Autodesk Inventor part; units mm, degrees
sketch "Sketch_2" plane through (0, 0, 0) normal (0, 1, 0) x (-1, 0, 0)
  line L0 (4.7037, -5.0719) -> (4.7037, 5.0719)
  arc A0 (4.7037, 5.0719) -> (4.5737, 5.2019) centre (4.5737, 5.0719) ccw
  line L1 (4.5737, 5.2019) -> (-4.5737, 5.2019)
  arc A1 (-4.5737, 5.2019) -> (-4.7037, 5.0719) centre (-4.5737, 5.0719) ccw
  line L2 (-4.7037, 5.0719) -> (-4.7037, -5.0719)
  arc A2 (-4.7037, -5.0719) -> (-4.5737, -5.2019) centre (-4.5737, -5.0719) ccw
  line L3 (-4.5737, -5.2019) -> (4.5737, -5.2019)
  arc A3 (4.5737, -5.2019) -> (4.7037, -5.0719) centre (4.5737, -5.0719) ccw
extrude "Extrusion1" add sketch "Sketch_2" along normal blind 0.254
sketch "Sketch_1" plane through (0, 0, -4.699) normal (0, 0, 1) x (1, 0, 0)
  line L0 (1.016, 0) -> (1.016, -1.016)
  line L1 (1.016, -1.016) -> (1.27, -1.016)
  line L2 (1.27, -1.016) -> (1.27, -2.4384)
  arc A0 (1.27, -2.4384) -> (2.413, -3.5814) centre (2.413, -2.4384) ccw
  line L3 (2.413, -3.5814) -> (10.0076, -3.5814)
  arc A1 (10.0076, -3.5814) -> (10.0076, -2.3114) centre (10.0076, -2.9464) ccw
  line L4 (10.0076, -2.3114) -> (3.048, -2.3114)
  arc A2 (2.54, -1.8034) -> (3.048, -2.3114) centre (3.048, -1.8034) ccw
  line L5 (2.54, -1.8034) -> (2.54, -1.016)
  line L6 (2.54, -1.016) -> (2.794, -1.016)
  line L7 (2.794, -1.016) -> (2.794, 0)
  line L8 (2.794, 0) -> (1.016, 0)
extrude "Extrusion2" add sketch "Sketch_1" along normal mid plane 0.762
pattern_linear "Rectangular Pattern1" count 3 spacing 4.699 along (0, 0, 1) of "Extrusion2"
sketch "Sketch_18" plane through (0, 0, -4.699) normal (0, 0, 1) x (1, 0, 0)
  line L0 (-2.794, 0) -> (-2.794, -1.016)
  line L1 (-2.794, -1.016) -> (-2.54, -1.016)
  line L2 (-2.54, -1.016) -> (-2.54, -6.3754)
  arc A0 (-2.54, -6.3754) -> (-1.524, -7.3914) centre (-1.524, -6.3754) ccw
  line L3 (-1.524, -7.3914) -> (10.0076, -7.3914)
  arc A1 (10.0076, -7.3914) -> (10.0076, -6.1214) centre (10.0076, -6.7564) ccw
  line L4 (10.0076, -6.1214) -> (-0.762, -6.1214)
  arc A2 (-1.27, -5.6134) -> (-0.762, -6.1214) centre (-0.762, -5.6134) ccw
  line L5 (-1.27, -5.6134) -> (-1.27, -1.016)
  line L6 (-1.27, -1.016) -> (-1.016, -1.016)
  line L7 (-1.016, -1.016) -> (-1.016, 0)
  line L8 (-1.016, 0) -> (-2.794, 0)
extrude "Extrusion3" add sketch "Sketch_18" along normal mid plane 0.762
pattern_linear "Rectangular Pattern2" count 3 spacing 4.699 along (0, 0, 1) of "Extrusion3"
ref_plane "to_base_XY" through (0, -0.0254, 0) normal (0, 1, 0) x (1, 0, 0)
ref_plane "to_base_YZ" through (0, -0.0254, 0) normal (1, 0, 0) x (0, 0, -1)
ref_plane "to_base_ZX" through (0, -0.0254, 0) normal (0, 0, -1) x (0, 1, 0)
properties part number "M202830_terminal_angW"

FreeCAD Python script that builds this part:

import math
import FreeCAD as App
import Part
import Sketcher

V = App.Vector
Q = App.Units.Quantity

doc = App.newDocument("Part")
params = doc.addObject("Spreadsheet::Sheet", "Params")
for row, (alias, value) in enumerate([
    ("pad1_length", "0.01 in"),
    ("sketch2_radius", "0.02 in"),
    ("sketch2_radius2", "0.045 in"),
    ("sketch2_radius3", "0.025 in"),
    ("sketch2_width", "0.07 in"),
    ("sketch2_width2", "0.01 in"),
    ("pad2_length", "0.03 in"),
    ("linearpattern_pitch", "0.185 in"),
    ("sketch3_radius", "0.04 in"),
    ("sketch3_radius2", "0.02 in"),
    ("sketch3_radius3", "0.025 in"),
    ("sketch3_width", "0.07 in"),
    ("sketch3_width2", "0.01 in"),
    ("pad3_length", "0.03 in"),
    ("linearpattern2_pitch", "0.185 in"),
], start=1):
    params.set(f"A{row}", alias)
    params.set(f"B{row}", "=" + value)
    params.setAlias(f"B{row}", alias)

body = doc.addObject("PartDesign::Body", "Body")

# Sketch on XZ plane
sketch1 = body.newObject("Sketcher::SketchObject", "Sketch")
sketch1.AttachmentSupport = (doc.getObject("XZ_Plane"), [""])
sketch1.MapMode = "FlatFace"
sketch1.addGeometry([
    Part.ArcOfCircle(Part.Circle(V(-4.5737, -5.0719, 0), V(0, 0, 1), 0.13), math.radians(180), math.radians(270)),  # 0
    Part.LineSegment(V(-4.7037, -5.0719, 0), V(-4.7037, 5.0719, 0)),  # 1
    Part.ArcOfCircle(Part.Circle(V(-4.5737, 5.0719, 0), V(0, 0, 1), 0.13), math.radians(90), math.radians(180)),  # 2
    Part.LineSegment(V(-4.5737, 5.2019, 0), V(4.5737, 5.2019, 0)),  # 3
    Part.ArcOfCircle(Part.Circle(V(4.5737, 5.0719, 0), V(0, 0, 1), 0.13), math.radians(0), math.radians(90)),  # 4
    Part.LineSegment(V(4.7037, 5.0719, 0), V(4.7037, -5.0719, 0)),  # 5
    Part.ArcOfCircle(Part.Circle(V(4.5737, -5.0719, 0), V(0, 0, 1), 0.13), math.radians(-90), math.radians(0)),  # 6
    Part.LineSegment(V(4.5737, -5.2019, 0), V(-4.5737, -5.2019, 0)),  # 7
], False)
sketch1.addConstraint([
    Sketcher.Constraint("Tangent", 0, 1, 1, 1),
    Sketcher.Constraint("Tangent", 1, 2, 2, 2),
    Sketcher.Constraint("Tangent", 2, 1, 3, 1),
    Sketcher.Constraint("Tangent", 3, 2, 4, 2),
    Sketcher.Constraint("Tangent", 4, 1, 5, 1),
    Sketcher.Constraint("Tangent", 5, 2, 6, 2),
    Sketcher.Constraint("Tangent", 6, 1, 7, 1),
    Sketcher.Constraint("Tangent", 7, 2, 0, 2),
    Sketcher.Constraint("Vertical", 1),
    Sketcher.Constraint("Horizontal", 3),
    Sketcher.Constraint("Vertical", 5),
    Sketcher.Constraint("Horizontal", 7),
    Sketcher.Constraint("Equal", 0, 2),
    Sketcher.Constraint("Equal", 2, 4),
    Sketcher.Constraint("Equal", 4, 6),
    Sketcher.Constraint("Symmetric", 0, 3, 4, 3, -1, 1),
    Sketcher.Constraint("Radius", 0, Q("0.13 mm")),
    Sketcher.Constraint("DistanceX", 3, 1, 3, 2, Q("9.1474 mm")),
    Sketcher.Constraint("DistanceY", 1, 1, 1, 2, Q("10.1438 mm")),
])
pad1 = body.newObject("PartDesign::Pad", "Pad")
pad1.Profile = sketch1
pad1.setExpression("Length", "Params.pad1_length")
pad1.Reversed = True

# Sketch on XY plane
sketch2 = body.newObject("Sketcher::SketchObject", "Sketch001")
sketch2.AttachmentSupport = (doc.getObject("XY_Plane"), [""])
sketch2.MapMode = "FlatFace"
sketch2.AttachmentOffset = App.Placement(V(0, 0, -0.185 * 25.4), App.Rotation())
sketch2.addGeometry([
    Part.LineSegment(V(2.794, 0, 0), V(1.016, 0, 0)),  # 0
    Part.LineSegment(V(1.016, 0, 0), V(1.016, -1.016, 0)),  # 1
    Part.LineSegment(V(1.016, -1.016, 0), V(1.27, -1.016, 0)),  # 2
    Part.LineSegment(V(1.27, -1.016, 0), V(1.27, -2.4384, 0)),  # 3
    Part.ArcOfCircle(Part.Circle(V(2.413, -2.4384, 0), V(0, 0, 1), 1.143), math.radians(180), math.radians(270)),  # 4
    Part.LineSegment(V(2.413, -3.5814, 0), V(10.0076, -3.5814, 0)),  # 5
    Part.ArcOfCircle(Part.Circle(V(10.0076, -2.9464, 0), V(0, 0, 1), 0.635), math.radians(-90), math.radians(90)),  # 6
    Part.LineSegment(V(10.0076, -2.3114, 0), V(3.048, -2.3114, 0)),  # 7
    Part.ArcOfCircle(Part.Circle(V(3.048, -1.8034, 0), V(0, 0, 1), 0.508), math.radians(180), math.radians(270)),  # 8
    Part.LineSegment(V(2.54, -1.8034, 0), V(2.54, -1.016, 0)),  # 9
    Part.LineSegment(V(2.54, -1.016, 0), V(2.794, -1.016, 0)),  # 10
    Part.LineSegment(V(2.794, -1.016, 0), V(2.794, 0, 0)),  # 11
], False)
sketch2.addConstraint([
    Sketcher.Constraint("Coincident", 0, 2, 1, 1),
    Sketcher.Constraint("Coincident", 1, 2, 2, 1),
    Sketcher.Constraint("Coincident", 2, 2, 3, 1),
    Sketcher.Constraint("Tangent", 3, 2, 4, 1),
    Sketcher.Constraint("Tangent", 4, 2, 5, 1),
    Sketcher.Constraint("Tangent", 5, 2, 6, 1),
    Sketcher.Constraint("Tangent", 6, 2, 7, 1),
    Sketcher.Constraint("Tangent", 7, 2, 8, 2),
    Sketcher.Constraint("Tangent", 8, 1, 9, 1),
    Sketcher.Constraint("Coincident", 9, 2, 10, 1),
    Sketcher.Constraint("Coincident", 10, 2, 11, 1),
    Sketcher.Constraint("Coincident", 11, 2, 0, 1),
    Sketcher.Constraint("Horizontal", 0),
    Sketcher.Constraint("Vertical", 1),
    Sketcher.Constraint("Horizontal", 2),
    Sketcher.Constraint("Vertical", 3),
    Sketcher.Constraint("Horizontal", 5),
    Sketcher.Constraint("Horizontal", 7),
    Sketcher.Constraint("Vertical", 9),
    Sketcher.Constraint("Horizontal", 10),
    Sketcher.Constraint("Vertical", 11),
    Sketcher.Constraint("PointOnObject", 0, 2, -1),
    Sketcher.Constraint("Horizontal", 2, 2, 9, 2),
    Sketcher.Constraint("Equal", 2, 10),
    Sketcher.Constraint("Radius", 8, Q("0.02 in")),
    Sketcher.Constraint("Radius", 4, Q("0.045 in")),
    Sketcher.Constraint("Radius", 6, Q("0.025 in")),
    Sketcher.Constraint("DistanceX", 0, 2, 0, 1, Q("0.07 in")),
    Sketcher.Constraint("DistanceX", 2, 1, 2, 2, Q("0.01 in")),
    Sketcher.Constraint("DistanceY", 1, 2, 1, 1, Q("0.04 in")),
    Sketcher.Constraint("DistanceX", -1, 1, 8, 1, Q("0.1 in")),
    Sketcher.Constraint("DistanceX", 5, 1, 5, 2, Q("0.299 in")),
    Sketcher.Constraint("DistanceY", 3, 2, 3, 1, Q("0.056 in")),
])
sketch2.setExpression("Constraints[24]", "Params.sketch2_radius")
sketch2.setExpression("Constraints[25]", "Params.sketch2_radius2")
sketch2.setExpression("Constraints[26]", "Params.sketch2_radius3")
sketch2.setExpression("Constraints[27]", "Params.sketch2_width")
sketch2.setExpression("Constraints[28]", "Params.sketch2_width2")
pad2 = body.newObject("PartDesign::Pad", "Pad001")
pad2.Profile = sketch2
pad2.setExpression("Length", "Params.pad2_length")
pad2.Midplane = True
doc.recompute()

linearpattern = body.newObject("PartDesign::LinearPattern", "LinearPattern")
linearpattern.Originals = [pad2]
linearpattern.Direction = (doc.getObject("Z_Axis"), [""])
linearpattern.Mode = "offset"
linearpattern.setExpression("Offset", "Params.linearpattern_pitch")
linearpattern.Occurrences = 3
body.Tip = linearpattern

# Sketch on XY plane
sketch3 = body.newObject("Sketcher::SketchObject", "Sketch002")
sketch3.AttachmentSupport = (doc.getObject("XY_Plane"), [""])
sketch3.MapMode = "FlatFace"
sketch3.AttachmentOffset = App.Placement(V(0, 0, -0.185 * 25.4), App.Rotation())
sketch3.addGeometry([
    Part.LineSegment(V(-1.016, 0, 0), V(-2.794, 0, 0)),  # 0
    Part.LineSegment(V(-2.794, 0, 0), V(-2.794, -1.016, 0)),  # 1
    Part.LineSegment(V(-2.794, -1.016, 0), V(-2.54, -1.016, 0)),  # 2
    Part.LineSegment(V(-2.54, -1.016, 0), V(-2.54, -6.3754, 0)),  # 3
    Part.ArcOfCircle(Part.Circle(V(-1.524, -6.3754, 0), V(0, 0, 1), 1.016), math.radians(180), math.radians(270)),  # 4
    Part.LineSegment(V(-1.524, -7.3914, 0), V(10.0076, -7.3914, 0)),  # 5
    Part.ArcOfCircle(Part.Circle(V(10.0076, -6.7564, 0), V(0, 0, 1), 0.635), math.radians(-90), math.radians(90)),  # 6
    Part.LineSegment(V(10.0076, -6.1214, 0), V(-0.762, -6.1214, 0)),  # 7
    Part.ArcOfCircle(Part.Circle(V(-0.762, -5.6134, 0), V(0, 0, 1), 0.508), math.radians(180), math.radians(270)),  # 8
    Part.LineSegment(V(-1.27, -5.6134, 0), V(-1.27, -1.016, 0)),  # 9
    Part.LineSegment(V(-1.27, -1.016, 0), V(-1.016, -1.016, 0)),  # 10
    Part.LineSegment(V(-1.016, -1.016, 0), V(-1.016, 0, 0)),  # 11
], False)
sketch3.addConstraint([
    Sketcher.Constraint("Coincident", 0, 2, 1, 1),
    Sketcher.Constraint("Coincident", 1, 2, 2, 1),
    Sketcher.Constraint("Coincident", 2, 2, 3, 1),
    Sketcher.Constraint("Tangent", 3, 2, 4, 1),
    Sketcher.Constraint("Tangent", 4, 2, 5, 1),
    Sketcher.Constraint("Tangent", 5, 2, 6, 1),
    Sketcher.Constraint("Tangent", 6, 2, 7, 1),
    Sketcher.Constraint("Tangent", 7, 2, 8, 2),
    Sketcher.Constraint("Tangent", 8, 1, 9, 1),
    Sketcher.Constraint("Coincident", 9, 2, 10, 1),
    Sketcher.Constraint("Coincident", 10, 2, 11, 1),
    Sketcher.Constraint("Coincident", 11, 2, 0, 1),
    Sketcher.Constraint("Horizontal", 0),
    Sketcher.Constraint("Vertical", 1),
    Sketcher.Constraint("Horizontal", 2),
    Sketcher.Constraint("Vertical", 3),
    Sketcher.Constraint("Horizontal", 5),
    Sketcher.Constraint("Horizontal", 7),
    Sketcher.Constraint("Vertical", 9),
    Sketcher.Constraint("Horizontal", 10),
    Sketcher.Constraint("Vertical", 11),
    Sketcher.Constraint("PointOnObject", 0, 2, -1),
    Sketcher.Constraint("Horizontal", 2, 2, 9, 2),
    Sketcher.Constraint("Equal", 2, 10),
    Sketcher.Constraint("Radius", 4, Q("0.04 in")),
    Sketcher.Constraint("Radius", 8, Q("0.02 in")),
    Sketcher.Constraint("Radius", 6, Q("0.025 in")),
    Sketcher.Constraint("DistanceX", 0, 2, 0, 1, Q("0.07 in")),
    Sketcher.Constraint("DistanceX", 2, 1, 2, 2, Q("0.01 in")),
    Sketcher.Constraint("DistanceY", 1, 2, 1, 1, Q("0.04 in")),
    Sketcher.Constraint("DistanceX", 2, 2, -1, 1, Q("0.1 in")),
    Sketcher.Constraint("DistanceX", 5, 1, 5, 2, Q("0.454 in")),
    Sketcher.Constraint("DistanceY", 3, 2, 3, 1, Q("0.211 in")),
])
sketch3.setExpression("Constraints[24]", "Params.sketch3_radius")
sketch3.setExpression("Constraints[25]", "Params.sketch3_radius2")
sketch3.setExpression("Constraints[26]", "Params.sketch3_radius3")
sketch3.setExpression("Constraints[27]", "Params.sketch3_width")
sketch3.setExpression("Constraints[28]", "Params.sketch3_width2")
pad3 = body.newObject("PartDesign::Pad", "Pad002")
pad3.Profile = sketch3
pad3.setExpression("Length", "Params.pad3_length")
pad3.Midplane = True
doc.recompute()

linearpattern2 = body.newObject("PartDesign::LinearPattern", "LinearPattern001")
linearpattern2.Originals = [pad3]
linearpattern2.Direction = (doc.getObject("Z_Axis"), [""])
linearpattern2.Mode = "offset"
linearpattern2.setExpression("Offset", "Params.linearpattern2_pitch")
linearpattern2.Occurrences = 3
body.Tip = linearpattern2

doc.recompute()
